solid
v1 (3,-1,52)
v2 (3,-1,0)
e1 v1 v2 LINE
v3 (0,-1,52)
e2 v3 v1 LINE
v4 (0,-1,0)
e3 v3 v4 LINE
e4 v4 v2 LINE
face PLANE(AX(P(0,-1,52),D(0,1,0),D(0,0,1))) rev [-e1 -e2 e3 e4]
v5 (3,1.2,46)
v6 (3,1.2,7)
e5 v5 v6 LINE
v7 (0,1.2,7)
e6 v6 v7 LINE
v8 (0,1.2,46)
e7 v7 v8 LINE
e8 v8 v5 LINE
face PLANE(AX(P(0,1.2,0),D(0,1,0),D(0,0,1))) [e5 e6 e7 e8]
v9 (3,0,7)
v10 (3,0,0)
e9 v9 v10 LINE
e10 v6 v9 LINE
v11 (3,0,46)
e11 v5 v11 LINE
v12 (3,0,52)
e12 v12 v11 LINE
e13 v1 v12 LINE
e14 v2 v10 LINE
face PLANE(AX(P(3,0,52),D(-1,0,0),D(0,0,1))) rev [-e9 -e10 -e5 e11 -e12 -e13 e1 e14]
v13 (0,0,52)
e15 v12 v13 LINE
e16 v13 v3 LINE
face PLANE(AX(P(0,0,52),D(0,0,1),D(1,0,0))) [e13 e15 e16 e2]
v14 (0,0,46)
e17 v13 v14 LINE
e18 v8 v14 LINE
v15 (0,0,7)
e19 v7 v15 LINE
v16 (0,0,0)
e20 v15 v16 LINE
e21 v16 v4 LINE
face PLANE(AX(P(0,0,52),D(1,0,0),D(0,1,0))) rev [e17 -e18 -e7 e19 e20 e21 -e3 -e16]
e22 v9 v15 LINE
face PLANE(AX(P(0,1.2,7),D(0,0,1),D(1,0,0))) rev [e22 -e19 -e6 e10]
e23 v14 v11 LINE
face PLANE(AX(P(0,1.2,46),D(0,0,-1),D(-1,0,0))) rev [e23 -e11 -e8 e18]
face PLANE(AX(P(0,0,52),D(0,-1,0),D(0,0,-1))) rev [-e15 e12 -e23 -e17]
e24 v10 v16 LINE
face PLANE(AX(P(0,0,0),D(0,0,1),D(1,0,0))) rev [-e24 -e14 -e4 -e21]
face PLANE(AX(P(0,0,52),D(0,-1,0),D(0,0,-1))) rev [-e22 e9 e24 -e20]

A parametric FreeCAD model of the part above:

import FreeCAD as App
import Part
import Sketcher

V = App.Vector

doc = App.newDocument("Part")
params = doc.addObject("Spreadsheet::Sheet", "Params")
for row, (alias, value) in enumerate([
    ("sketch1_width", "3 mm"),
    ("sketch1_height", "1 mm"),
    ("pad1_length", "52 mm"),
    ("sketch2_width", "3 mm"),
    ("sketch2_height", "39 mm"),
    ("pad2_length", "1.2 mm"),
], start=1):
    params.set(f"A{row}", alias)
    params.set(f"B{row}", "=" + value)
    params.setAlias(f"B{row}", alias)

body = doc.addObject("PartDesign::Body", "Body")

# Sketch on XY plane
sketch1 = doc.addObject("Sketcher::SketchObject", "Sketch")
body.addObject(sketch1)
sketch1.AttachmentSupport = (doc.XY_Plane, [""])
sketch1.MapMode = "FlatFace"
sketch1.addGeometry(Part.LineSegment(V(0, 0, 0), V(0, -1, 0)), False)
sketch1.addGeometry(Part.LineSegment(V(0, -1, 0), V(3, -1, 0)), False)
sketch1.addGeometry(Part.LineSegment(V(3, -1, 0), V(3, 0, 0)), False)
sketch1.addGeometry(Part.LineSegment(V(3, 0, 0), V(0, 0, 0)), False)
sketch1.addConstraint(Sketcher.Constraint("Coincident", 0, 2, 1, 1))
sketch1.addConstraint(Sketcher.Constraint("Coincident", 1, 2, 2, 1))
sketch1.addConstraint(Sketcher.Constraint("Coincident", 2, 2, 3, 1))
sketch1.addConstraint(Sketcher.Constraint("Coincident", 3, 2, 0, 1))
sketch1.addConstraint(Sketcher.Constraint("Vertical", 0))
sketch1.addConstraint(Sketcher.Constraint("Horizontal", 1))
sketch1.addConstraint(Sketcher.Constraint("Vertical", 2))
sketch1.addConstraint(Sketcher.Constraint("Horizontal", 3))
sketch1.addConstraint(Sketcher.Constraint("Coincident", 3, 2, -1, 1))
sketch1.addConstraint(Sketcher.Constraint("DistanceX", 1, 1, 1, 2, 3.0))
sketch1.addConstraint(Sketcher.Constraint("DistanceY", 0, 2, 0, 1, 1.0))
sketch1.setExpression("Constraints[9]", "Params.sketch1_width")
sketch1.setExpression("Constraints[10]", "Params.sketch1_height")
pad1 = doc.addObject("PartDesign::Pad", "Pad")
body.addObject(pad1)
pad1.Profile = sketch1
pad1.setExpression("Length", "Params.pad1_length")

# Sketch on XZ plane
sketch2 = doc.addObject("Sketcher::SketchObject", "Sketch001")
body.addObject(sketch2)
sketch2.AttachmentSupport = (doc.XZ_Plane, [""])
sketch2.MapMode = "FlatFace"
sketch2.addGeometry(Part.LineSegment(V(0, 7, 0), V(0, 46, 0)), False)
sketch2.addGeometry(Part.LineSegment(V(0, 46, 0), V(3, 46, 0)), False)
sketch2.addGeometry(Part.LineSegment(V(3, 46, 0), V(3, 7, 0)), False)
sketch2.addGeometry(Part.LineSegment(V(3, 7, 0), V(0, 7, 0)), False)
sketch2.addConstraint(Sketcher.Constraint("Coincident", 0, 2, 1, 1))
sketch2.addConstraint(Sketcher.Constraint("Coincident", 1, 2, 2, 1))
sketch2.addConstraint(Sketcher.Constraint("Coincident", 2, 2, 3, 1))
sketch2.addConstraint(Sketcher.Constraint("Coincident", 3, 2, 0, 1))
sketch2.addConstraint(Sketcher.Constraint("Vertical", 0))
sketch2.addConstraint(Sketcher.Constraint("Horizontal", 1))
sketch2.addConstraint(Sketcher.Constraint("Vertical", 2))
sketch2.addConstraint(Sketcher.Constraint("Horizontal", 3))
sketch2.addConstraint(Sketcher.Constraint("PointOnObject", 0, 2, -2))
sketch2.addConstraint(Sketcher.Constraint("DistanceX", 1, 1, 1, 2, 3.0))
sketch2.addConstraint(Sketcher.Constraint("DistanceY", 0, 1, 0, 2, 39.0))
sketch2.addConstraint(Sketcher.Constraint("DistanceY", -1, 1, 0, 2, 46.0))
sketch2.setExpression("Constraints[9]", "Params.sketch2_width")
sketch2.setExpression("Constraints[10]", "Params.sketch2_height")
pad2 = doc.addObject("PartDesign::Pad", "Pad001")
body.addObject(pad2)
pad2.Profile = sketch2
pad2.setExpression("Length", "Params.pad2_length")
pad2.Reversed = True

doc.recompute()
